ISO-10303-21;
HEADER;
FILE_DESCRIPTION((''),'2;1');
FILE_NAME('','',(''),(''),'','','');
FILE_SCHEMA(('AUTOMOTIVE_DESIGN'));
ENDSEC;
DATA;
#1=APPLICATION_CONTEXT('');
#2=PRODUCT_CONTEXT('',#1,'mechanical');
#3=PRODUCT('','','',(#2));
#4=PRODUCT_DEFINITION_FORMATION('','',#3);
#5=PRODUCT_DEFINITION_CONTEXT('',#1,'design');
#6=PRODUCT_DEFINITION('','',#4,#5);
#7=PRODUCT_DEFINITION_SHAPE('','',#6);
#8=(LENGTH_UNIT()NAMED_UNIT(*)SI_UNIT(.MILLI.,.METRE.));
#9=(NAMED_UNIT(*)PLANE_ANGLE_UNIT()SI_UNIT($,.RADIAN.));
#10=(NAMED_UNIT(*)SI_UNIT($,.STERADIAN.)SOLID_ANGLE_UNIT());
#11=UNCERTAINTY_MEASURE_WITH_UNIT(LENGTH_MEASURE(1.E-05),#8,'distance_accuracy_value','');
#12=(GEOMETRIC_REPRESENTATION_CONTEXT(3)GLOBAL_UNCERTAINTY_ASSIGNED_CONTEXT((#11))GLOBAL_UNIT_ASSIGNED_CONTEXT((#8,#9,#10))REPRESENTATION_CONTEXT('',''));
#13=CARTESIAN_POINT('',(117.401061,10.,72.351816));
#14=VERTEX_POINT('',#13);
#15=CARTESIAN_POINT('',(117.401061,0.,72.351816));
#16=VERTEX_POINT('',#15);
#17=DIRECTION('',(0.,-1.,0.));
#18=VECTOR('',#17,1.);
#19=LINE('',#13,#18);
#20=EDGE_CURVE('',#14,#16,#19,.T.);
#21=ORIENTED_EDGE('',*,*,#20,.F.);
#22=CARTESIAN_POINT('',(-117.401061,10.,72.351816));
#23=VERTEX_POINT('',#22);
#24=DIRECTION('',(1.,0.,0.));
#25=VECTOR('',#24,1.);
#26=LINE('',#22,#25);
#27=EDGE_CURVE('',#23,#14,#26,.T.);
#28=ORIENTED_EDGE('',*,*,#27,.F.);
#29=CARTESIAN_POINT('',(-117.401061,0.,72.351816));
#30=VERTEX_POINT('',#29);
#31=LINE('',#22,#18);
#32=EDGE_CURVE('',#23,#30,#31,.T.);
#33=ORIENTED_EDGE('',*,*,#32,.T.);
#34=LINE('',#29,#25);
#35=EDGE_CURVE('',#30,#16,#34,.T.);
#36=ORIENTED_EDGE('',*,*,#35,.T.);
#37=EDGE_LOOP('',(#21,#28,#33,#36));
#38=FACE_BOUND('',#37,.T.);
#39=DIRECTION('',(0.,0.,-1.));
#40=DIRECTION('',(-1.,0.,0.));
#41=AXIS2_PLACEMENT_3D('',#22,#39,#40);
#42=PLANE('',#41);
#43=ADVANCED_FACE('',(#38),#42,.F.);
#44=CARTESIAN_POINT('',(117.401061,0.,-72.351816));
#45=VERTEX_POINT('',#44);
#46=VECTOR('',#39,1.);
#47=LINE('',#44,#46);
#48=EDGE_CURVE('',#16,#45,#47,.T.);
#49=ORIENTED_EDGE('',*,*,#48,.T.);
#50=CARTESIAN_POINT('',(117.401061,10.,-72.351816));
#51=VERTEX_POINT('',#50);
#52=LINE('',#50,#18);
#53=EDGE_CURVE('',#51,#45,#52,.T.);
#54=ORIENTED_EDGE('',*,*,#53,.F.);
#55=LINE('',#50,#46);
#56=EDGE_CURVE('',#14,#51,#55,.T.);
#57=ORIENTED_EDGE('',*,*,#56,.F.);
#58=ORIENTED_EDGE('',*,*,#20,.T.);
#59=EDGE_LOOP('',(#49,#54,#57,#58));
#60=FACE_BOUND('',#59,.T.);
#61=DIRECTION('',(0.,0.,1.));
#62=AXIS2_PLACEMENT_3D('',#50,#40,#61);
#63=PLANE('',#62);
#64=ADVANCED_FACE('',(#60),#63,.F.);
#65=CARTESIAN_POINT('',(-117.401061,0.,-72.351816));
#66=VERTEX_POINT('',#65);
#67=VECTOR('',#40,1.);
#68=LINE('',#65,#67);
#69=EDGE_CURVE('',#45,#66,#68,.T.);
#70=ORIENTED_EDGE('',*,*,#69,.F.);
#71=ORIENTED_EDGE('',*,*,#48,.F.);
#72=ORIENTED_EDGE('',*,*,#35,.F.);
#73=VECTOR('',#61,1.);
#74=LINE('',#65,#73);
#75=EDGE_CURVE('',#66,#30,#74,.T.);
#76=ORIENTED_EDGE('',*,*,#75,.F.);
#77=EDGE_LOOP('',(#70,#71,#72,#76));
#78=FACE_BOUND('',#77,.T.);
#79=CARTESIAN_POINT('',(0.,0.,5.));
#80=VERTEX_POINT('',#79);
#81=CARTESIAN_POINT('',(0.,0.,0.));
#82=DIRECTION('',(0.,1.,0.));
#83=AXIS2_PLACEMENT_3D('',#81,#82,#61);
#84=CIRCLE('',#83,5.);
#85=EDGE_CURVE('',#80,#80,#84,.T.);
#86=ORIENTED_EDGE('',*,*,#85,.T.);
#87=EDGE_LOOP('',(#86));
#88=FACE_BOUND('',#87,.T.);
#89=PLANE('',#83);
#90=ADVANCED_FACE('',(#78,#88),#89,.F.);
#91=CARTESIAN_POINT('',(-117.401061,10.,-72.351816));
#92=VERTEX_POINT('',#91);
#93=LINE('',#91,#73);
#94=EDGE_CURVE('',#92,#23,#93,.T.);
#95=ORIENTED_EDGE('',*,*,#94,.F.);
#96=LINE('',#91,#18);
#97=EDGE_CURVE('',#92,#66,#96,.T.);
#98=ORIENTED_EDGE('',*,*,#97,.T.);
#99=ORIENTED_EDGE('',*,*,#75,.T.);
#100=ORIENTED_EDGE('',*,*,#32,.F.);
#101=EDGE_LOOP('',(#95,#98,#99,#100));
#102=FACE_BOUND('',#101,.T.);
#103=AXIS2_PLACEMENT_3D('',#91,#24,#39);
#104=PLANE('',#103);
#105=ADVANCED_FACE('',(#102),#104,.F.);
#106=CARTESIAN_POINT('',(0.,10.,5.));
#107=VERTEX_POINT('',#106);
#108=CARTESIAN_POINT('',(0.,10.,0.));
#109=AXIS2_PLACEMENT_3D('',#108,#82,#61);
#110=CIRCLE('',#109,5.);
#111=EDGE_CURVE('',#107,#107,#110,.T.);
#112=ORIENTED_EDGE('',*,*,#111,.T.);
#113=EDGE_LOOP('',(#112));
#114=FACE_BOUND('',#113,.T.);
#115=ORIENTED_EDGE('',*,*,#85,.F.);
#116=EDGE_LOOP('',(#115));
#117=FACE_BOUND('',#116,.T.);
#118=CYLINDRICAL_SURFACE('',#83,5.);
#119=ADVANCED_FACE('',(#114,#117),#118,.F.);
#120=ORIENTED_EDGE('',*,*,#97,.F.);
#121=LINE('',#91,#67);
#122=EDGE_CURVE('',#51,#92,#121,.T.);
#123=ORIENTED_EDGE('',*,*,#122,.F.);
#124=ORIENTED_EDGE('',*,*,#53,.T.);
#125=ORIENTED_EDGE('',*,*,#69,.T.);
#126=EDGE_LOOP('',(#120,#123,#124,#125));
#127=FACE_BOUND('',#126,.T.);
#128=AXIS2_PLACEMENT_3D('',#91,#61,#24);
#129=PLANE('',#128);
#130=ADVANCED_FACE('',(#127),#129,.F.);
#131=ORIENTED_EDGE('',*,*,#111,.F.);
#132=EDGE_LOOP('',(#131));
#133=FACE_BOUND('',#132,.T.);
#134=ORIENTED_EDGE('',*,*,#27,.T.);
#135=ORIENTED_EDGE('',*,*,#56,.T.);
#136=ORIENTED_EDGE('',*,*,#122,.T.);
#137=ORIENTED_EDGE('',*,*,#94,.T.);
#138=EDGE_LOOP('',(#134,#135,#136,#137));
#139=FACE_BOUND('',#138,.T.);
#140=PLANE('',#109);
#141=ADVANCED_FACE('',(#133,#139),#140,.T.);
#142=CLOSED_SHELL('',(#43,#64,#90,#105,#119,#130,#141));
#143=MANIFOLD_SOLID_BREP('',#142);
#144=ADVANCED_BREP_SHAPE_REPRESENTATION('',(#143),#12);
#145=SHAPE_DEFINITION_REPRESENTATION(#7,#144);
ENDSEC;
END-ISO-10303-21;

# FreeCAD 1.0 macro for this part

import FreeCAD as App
import Part
import Sketcher
from FreeCAD import Vector
Q = App.Units.Quantity

doc = App.newDocument("Part")
body = doc.addObject("PartDesign::Body", "Body")

# Sketch on XZ plane
sketch1 = doc.addObject("Sketcher::SketchObject", "Sketch")
body.addObject(sketch1)
sketch1.AttachmentSupport = (doc.XZ_Plane, [""])
sketch1.MapMode = "FlatFace"
sketch1.addGeometry(Part.LineSegment(Vector(-117, -72, 0), Vector(-117, 72, 0)), False)
sketch1.addGeometry(Part.LineSegment(Vector(-117, 72, 0), Vector(117, 72, 0)), False)
sketch1.addGeometry(Part.LineSegment(Vector(117, 72, 0), Vector(117, -72, 0)), False)
sketch1.addGeometry(Part.LineSegment(Vector(117, -72, 0), Vector(-117, -72, 0)), False)
sketch1.addConstraint(Sketcher.Constraint("Coincident", 0, 2, 1, 1))
sketch1.addConstraint(Sketcher.Constraint("Coincident", 1, 2, 2, 1))
sketch1.addConstraint(Sketcher.Constraint("Coincident", 2, 2, 3, 1))
sketch1.addConstraint(Sketcher.Constraint("Coincident", 3, 2, 0, 1))
sketch1.addConstraint(Sketcher.Constraint("Vertical", 0))
sketch1.addConstraint(Sketcher.Constraint("Horizontal", 1))
sketch1.addConstraint(Sketcher.Constraint("Vertical", 2))
sketch1.addConstraint(Sketcher.Constraint("Horizontal", 3))
sketch1.addConstraint(Sketcher.Constraint("Symmetric", 0, 2, 2, 2, -1, 1))
sketch1.addConstraint(Sketcher.Constraint("DistanceX", 1, 1, 1, 2, Q("234.802121 mm")))
sketch1.addConstraint(Sketcher.Constraint("DistanceY", 0, 1, 0, 2, Q("144.703633 mm")))
pad1 = doc.addObject("PartDesign::Pad", "Pad")
body.addObject(pad1)
pad1.Profile = sketch1
pad1.Length = 10
pad1.Reversed = True

# Sketch on XZ plane
sketch2 = doc.addObject("Sketcher::SketchObject", "Sketch001")
body.addObject(sketch2)
sketch2.AttachmentSupport = (doc.XZ_Plane, [""])
sketch2.MapMode = "FlatFace"
sketch2.AttachmentOffset = App.Placement(Vector(0, 0, -10), App.Rotation())
sketch2.addGeometry(Part.Circle(Vector(0, 0, 0), Vector(0, 0, 1), 5), False)
sketch2.addConstraint(Sketcher.Constraint("Coincident", 0, 3, -1, 1))
sketch2.addConstraint(Sketcher.Constraint("Diameter", 0, Q("10 mm")))
pocket1 = doc.addObject("PartDesign::Pocket", "Pocket")
body.addObject(pocket1)
pocket1.Profile = sketch2
pocket1.Length = 10
pocket1.Reversed = True

doc.recompute()
